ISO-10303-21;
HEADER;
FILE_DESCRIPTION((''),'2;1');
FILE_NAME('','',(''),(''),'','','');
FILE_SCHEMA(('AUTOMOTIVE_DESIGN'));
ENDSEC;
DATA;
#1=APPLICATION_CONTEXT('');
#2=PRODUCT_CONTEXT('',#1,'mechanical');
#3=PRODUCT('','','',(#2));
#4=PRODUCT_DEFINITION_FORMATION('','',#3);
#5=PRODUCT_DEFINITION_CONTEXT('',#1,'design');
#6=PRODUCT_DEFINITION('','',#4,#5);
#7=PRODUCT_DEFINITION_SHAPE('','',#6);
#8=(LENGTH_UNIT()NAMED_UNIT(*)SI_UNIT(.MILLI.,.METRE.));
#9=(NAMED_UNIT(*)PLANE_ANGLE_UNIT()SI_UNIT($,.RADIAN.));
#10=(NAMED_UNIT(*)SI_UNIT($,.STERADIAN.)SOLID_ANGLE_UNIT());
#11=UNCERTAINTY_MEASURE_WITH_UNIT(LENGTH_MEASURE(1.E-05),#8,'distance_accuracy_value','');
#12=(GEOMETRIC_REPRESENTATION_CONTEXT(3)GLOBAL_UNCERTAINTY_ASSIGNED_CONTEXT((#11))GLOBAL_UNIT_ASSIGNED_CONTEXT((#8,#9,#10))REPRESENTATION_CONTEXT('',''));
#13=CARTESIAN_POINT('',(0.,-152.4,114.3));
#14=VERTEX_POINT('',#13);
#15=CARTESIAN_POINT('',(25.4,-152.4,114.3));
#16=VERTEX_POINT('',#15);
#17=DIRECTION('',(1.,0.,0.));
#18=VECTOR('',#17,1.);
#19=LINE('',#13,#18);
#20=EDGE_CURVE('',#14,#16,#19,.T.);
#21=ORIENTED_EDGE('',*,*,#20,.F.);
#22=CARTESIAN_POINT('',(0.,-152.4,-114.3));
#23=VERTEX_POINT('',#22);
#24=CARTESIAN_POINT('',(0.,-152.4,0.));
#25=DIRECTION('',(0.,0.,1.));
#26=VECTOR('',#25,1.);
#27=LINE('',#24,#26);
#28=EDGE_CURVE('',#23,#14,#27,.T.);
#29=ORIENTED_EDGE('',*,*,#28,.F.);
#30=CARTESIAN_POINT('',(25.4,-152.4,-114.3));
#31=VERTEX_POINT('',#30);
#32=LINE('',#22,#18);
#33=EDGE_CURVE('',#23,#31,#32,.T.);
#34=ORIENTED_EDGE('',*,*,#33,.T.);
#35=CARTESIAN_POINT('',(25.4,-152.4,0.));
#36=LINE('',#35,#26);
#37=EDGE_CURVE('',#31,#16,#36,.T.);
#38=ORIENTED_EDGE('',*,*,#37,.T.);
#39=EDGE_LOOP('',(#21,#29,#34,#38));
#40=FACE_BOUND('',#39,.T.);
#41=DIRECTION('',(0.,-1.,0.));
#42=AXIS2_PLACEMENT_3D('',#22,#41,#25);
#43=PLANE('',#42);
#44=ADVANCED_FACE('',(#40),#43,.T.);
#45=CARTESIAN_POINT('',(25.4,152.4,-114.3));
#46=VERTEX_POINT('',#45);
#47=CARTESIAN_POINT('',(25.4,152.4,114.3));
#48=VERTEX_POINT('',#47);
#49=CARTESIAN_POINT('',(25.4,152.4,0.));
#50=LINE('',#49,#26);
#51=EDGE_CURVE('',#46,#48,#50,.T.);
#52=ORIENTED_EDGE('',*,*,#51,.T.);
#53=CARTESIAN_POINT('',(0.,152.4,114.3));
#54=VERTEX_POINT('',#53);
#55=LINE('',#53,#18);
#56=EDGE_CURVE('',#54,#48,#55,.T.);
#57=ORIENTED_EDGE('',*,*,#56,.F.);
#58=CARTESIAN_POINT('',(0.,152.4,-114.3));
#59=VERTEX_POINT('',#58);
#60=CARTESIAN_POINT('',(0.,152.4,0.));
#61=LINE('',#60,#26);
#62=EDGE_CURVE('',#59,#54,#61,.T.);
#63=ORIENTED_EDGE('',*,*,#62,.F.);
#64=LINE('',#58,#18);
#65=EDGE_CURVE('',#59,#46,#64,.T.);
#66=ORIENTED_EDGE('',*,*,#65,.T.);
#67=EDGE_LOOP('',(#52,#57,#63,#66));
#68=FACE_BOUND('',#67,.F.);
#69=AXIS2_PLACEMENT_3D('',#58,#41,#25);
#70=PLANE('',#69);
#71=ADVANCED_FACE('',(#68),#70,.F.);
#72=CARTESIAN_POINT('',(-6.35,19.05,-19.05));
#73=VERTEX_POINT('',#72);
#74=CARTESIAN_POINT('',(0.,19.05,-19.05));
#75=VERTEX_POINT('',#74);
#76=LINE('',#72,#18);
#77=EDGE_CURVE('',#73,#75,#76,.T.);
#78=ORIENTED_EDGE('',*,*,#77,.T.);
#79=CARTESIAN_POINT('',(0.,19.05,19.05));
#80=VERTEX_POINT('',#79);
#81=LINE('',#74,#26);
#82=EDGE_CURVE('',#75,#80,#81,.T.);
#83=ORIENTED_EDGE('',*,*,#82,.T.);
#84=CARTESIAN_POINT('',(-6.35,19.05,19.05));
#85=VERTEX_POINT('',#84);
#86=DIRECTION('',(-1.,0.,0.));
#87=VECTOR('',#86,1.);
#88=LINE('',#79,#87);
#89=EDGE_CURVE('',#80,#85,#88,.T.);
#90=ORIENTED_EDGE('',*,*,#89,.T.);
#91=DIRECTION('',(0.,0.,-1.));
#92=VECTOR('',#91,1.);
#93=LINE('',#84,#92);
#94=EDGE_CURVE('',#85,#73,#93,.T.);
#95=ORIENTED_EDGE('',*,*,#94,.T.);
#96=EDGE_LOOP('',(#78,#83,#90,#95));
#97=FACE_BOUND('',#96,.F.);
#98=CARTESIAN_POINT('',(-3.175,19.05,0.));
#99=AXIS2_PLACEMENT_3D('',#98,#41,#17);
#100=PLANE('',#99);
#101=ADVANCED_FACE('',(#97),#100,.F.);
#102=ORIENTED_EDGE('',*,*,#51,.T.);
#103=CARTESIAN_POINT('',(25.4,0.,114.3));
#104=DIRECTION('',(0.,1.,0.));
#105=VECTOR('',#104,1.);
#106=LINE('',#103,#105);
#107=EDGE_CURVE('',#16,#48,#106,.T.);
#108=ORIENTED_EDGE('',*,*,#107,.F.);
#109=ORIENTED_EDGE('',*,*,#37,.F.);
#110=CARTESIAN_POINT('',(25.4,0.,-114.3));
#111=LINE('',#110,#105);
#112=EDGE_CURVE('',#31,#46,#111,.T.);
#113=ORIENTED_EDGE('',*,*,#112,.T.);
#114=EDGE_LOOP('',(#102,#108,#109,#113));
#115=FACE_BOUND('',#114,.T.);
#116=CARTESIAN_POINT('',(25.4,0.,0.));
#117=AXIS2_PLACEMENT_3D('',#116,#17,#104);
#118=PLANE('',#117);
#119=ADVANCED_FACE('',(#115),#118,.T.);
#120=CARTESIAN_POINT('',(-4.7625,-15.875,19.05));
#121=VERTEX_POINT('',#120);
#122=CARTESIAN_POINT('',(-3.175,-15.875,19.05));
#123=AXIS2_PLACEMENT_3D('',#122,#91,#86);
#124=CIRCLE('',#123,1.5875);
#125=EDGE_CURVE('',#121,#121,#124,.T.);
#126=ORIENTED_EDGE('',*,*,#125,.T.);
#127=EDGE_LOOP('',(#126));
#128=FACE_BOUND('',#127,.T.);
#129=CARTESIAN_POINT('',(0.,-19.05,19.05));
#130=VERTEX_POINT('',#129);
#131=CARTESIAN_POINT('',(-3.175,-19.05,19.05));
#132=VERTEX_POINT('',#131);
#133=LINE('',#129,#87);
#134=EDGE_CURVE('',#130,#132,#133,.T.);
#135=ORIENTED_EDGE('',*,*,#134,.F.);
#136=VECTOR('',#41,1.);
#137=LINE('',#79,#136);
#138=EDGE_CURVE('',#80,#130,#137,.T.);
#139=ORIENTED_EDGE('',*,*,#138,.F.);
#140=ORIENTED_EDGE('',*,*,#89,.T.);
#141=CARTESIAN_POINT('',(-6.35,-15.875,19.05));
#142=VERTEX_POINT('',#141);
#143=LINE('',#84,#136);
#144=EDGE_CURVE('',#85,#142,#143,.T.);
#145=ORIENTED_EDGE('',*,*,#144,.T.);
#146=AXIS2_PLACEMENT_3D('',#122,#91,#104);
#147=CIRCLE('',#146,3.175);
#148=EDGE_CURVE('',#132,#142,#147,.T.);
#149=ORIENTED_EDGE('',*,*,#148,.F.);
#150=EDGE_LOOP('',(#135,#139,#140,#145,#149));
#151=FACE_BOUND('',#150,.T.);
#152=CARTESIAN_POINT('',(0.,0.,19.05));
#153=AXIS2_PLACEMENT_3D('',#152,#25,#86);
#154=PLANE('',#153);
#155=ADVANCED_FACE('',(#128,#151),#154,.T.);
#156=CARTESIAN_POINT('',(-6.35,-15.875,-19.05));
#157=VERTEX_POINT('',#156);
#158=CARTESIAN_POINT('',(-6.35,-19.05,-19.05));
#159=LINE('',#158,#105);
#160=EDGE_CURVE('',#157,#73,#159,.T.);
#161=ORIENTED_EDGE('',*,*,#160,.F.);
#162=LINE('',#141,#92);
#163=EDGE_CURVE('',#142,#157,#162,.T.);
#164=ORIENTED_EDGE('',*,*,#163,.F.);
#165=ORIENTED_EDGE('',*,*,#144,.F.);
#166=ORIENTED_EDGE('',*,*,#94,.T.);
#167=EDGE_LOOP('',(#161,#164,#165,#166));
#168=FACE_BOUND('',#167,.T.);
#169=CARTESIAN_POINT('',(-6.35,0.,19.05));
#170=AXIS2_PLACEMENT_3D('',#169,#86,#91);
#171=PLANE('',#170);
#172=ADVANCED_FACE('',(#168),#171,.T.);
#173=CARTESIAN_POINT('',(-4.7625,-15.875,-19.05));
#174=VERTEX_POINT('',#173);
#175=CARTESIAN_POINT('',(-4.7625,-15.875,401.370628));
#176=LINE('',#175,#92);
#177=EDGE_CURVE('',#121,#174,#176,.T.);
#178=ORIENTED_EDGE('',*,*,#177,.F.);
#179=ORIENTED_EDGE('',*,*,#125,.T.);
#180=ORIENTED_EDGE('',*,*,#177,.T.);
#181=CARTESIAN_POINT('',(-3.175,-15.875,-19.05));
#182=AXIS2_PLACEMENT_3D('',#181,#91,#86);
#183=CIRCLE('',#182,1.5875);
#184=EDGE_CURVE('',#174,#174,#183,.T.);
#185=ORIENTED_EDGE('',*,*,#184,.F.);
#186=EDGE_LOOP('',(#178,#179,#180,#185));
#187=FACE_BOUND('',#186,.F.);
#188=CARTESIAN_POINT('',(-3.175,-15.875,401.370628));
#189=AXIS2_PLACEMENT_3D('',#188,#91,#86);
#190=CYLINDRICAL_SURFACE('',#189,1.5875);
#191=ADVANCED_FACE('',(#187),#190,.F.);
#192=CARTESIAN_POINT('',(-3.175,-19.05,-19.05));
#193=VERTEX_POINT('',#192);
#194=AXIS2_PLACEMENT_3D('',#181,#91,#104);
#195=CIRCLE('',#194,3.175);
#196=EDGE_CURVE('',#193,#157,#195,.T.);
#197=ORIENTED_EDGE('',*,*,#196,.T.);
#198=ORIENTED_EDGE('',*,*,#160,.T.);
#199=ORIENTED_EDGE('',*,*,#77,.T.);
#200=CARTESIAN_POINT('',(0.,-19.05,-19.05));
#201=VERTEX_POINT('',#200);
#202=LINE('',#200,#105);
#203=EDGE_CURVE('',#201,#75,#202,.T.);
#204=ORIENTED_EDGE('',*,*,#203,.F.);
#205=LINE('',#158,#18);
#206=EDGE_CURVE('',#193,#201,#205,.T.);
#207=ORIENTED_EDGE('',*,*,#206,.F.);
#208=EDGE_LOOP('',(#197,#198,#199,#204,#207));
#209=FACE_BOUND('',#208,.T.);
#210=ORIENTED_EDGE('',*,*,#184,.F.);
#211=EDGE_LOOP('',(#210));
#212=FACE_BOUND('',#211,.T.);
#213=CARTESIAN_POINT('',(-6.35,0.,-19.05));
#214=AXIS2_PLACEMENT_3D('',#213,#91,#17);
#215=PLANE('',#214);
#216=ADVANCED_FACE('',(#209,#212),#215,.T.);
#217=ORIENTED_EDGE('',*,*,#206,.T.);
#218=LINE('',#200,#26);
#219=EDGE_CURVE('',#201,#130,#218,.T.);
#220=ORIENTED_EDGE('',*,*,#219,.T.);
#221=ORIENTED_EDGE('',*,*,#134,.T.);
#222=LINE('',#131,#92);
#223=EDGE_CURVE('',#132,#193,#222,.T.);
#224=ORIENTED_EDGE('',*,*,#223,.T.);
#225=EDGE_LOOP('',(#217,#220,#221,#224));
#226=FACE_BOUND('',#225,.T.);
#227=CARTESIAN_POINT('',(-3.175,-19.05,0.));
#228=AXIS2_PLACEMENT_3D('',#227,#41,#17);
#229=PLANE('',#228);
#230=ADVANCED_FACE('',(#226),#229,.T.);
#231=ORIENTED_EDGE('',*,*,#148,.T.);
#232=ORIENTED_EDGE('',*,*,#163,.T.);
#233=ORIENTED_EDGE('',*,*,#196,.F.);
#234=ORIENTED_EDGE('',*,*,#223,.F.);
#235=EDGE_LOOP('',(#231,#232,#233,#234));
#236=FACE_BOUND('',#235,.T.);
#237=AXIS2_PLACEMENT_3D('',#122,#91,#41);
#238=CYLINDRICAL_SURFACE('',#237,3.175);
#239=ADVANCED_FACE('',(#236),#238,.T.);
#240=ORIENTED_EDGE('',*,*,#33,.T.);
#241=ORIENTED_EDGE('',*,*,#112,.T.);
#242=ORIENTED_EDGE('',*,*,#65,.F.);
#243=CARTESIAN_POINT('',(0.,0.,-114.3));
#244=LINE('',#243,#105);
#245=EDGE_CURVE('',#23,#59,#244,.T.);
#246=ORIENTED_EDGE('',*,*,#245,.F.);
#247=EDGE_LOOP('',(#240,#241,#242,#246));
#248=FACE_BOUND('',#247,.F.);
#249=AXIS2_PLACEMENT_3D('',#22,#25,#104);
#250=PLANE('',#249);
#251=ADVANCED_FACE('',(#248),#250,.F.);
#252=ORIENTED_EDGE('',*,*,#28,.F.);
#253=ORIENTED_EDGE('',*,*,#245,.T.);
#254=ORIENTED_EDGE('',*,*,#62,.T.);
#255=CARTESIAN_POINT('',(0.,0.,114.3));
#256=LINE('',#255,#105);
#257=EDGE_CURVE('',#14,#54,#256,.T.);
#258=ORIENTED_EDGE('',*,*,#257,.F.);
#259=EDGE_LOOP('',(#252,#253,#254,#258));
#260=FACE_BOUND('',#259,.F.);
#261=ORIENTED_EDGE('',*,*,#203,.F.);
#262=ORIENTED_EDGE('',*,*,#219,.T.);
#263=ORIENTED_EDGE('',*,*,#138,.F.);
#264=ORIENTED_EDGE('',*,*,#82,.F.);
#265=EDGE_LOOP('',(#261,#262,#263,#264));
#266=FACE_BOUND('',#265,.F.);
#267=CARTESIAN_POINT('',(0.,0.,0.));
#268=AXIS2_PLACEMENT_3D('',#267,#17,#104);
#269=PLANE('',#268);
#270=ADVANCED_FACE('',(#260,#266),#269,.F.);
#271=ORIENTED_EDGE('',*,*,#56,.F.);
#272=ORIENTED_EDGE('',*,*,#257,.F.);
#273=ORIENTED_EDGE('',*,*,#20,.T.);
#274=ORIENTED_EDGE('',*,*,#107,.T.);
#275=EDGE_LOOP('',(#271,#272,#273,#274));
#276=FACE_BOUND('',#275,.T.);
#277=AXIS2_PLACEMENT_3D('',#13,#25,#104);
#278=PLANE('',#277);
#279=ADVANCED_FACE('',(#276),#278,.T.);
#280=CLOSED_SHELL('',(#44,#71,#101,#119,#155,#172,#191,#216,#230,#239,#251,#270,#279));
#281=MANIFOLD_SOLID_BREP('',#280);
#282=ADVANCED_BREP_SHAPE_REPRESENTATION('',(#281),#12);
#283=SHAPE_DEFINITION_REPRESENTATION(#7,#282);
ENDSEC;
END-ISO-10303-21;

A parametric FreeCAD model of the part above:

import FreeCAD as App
import Part
import Sketcher
from FreeCAD import Vector
Q = App.Units.Quantity


def edges_at(feature, points):
    """Names of the edges that pass closest to the given points."""
    edges = feature.Shape.Edges
    near = lambda p: min(range(len(edges)), key=lambda i: edges[i].distToShape(Part.Vertex(*p))[0])
    return sorted({f"Edge{near(p) + 1}" for p in points})

doc = App.newDocument("Part")
body = doc.addObject("PartDesign::Body", "Body")

sketch1 = doc.addObject("Sketcher::SketchObject", "Sketch")
body.addObject(sketch1)
sketch1.AttachmentSupport = (doc.YZ_Plane, [""])
sketch1.MapMode = "FlatFace"
sketch1.addGeometry([
    Part.LineSegment(Vector(-152.4, 114.3, 0), Vector(-152.4, -114.3, 0)),
    Part.LineSegment(Vector(-152.4, -114.3, 0), Vector(152.4, -114.3, 0)),
    Part.LineSegment(Vector(152.4, -114.3, 0), Vector(152.4, 114.3, 0)),
    Part.LineSegment(Vector(152.4, 114.3, 0), Vector(-152.4, 114.3, 0)),
], False)
sketch1.addConstraint([
    Sketcher.Constraint("Coincident", 0, 2, 1, 1),
    Sketcher.Constraint("Coincident", 1, 2, 2, 1),
    Sketcher.Constraint("Coincident", 2, 2, 3, 1),
    Sketcher.Constraint("Coincident", 3, 2, 0, 1),
    Sketcher.Constraint("Vertical", 0),
    Sketcher.Constraint("Horizontal", 1),
    Sketcher.Constraint("Vertical", 2),
    Sketcher.Constraint("Horizontal", 3),
    Sketcher.Constraint("Symmetric", 0, 2, 2, 2, -1, 1),
    Sketcher.Constraint("DistanceX", 1, 1, 1, 2, Q("12 in")),
    Sketcher.Constraint("DistanceY", 0, 2, 0, 1, Q("9 in")),
])
pad1 = doc.addObject("PartDesign::Pad", "Pad")
body.addObject(pad1)
pad1.Profile = sketch1
pad1.Length = Q("1 in")

sketch2 = doc.addObject("Sketcher::SketchObject", "Sketch001")
body.addObject(sketch2)
sketch2.AttachmentSupport = (doc.XZ_Plane, [""])
sketch2.MapMode = "FlatFace"
sketch2.addGeometry([
    Part.LineSegment(Vector(0, -19.05, 0), Vector(0, 19.05, 0)),
    Part.LineSegment(Vector(0, 19.05, 0), Vector(-6.35, 19.05, 0)),
    Part.LineSegment(Vector(-6.35, 19.05, 0), Vector(-6.35, -19.05, 0)),
    Part.LineSegment(Vector(-6.35, -19.05, 0), Vector(0, -19.05, 0)),
], False)
sketch2.addConstraint([
    Sketcher.Constraint("Coincident", 0, 2, 1, 1),
    Sketcher.Constraint("Coincident", 1, 2, 2, 1),
    Sketcher.Constraint("Coincident", 2, 2, 3, 1),
    Sketcher.Constraint("Coincident", 3, 2, 0, 1),
    Sketcher.Constraint("Vertical", 0),
    Sketcher.Constraint("Horizontal", 1),
    Sketcher.Constraint("Vertical", 2),
    Sketcher.Constraint("Horizontal", 3),
    Sketcher.Constraint("Symmetric", 0, 2, 3, 2, -1, 1),
    Sketcher.Constraint("DistanceY", 0, 1, 0, 2, Q("1.5 in")),
    Sketcher.Constraint("DistanceX", 1, 2, 1, 1, Q("0.25 in")),
])
pad2 = doc.addObject("PartDesign::Pad", "Pad001")
body.addObject(pad2)
pad2.Profile = sketch2
pad2.Length = Q("1.5 in")
pad2.Midplane = True

sketch3 = doc.addObject("Sketcher::SketchObject", "Sketch002")
body.addObject(sketch3)
sketch3.AttachmentSupport = (doc.XY_Plane, [""])
sketch3.MapMode = "FlatFace"
sketch3.AttachmentOffset = App.Placement(Vector(0, 0, 0.75 * 25.4), App.Rotation())
sketch3.addGeometry(Part.Circle(Vector(-3.175, -15.875, 0), Vector(0, 0, 1), 1.5875), False)
sketch3.addConstraint([
    Sketcher.Constraint("Diameter", 0, Q("0.125 in")),
    Sketcher.Constraint("DistanceX", 0, 3, -1, 1, Q("0.125 in")),
    Sketcher.Constraint("DistanceY", 0, 3, -1, 1, Q("0.625 in")),
])
doc.recompute()
hole = doc.addObject("PartDesign::Hole", "Hole")
body.addObject(hole)
hole.Profile = sketch3
hole.ThreadType = "None"
hole.Diameter = Q("0.125 in")
hole.DepthType = "ThroughAll"
doc.recompute()

fillet = doc.addObject("PartDesign::Fillet", "Fillet")
body.addObject(fillet)
fillet.Base = (hole, edges_at(hole, [(-6.35, -19.05, 0)]))
fillet.Radius = Q("0.125 in")

doc.recompute()
